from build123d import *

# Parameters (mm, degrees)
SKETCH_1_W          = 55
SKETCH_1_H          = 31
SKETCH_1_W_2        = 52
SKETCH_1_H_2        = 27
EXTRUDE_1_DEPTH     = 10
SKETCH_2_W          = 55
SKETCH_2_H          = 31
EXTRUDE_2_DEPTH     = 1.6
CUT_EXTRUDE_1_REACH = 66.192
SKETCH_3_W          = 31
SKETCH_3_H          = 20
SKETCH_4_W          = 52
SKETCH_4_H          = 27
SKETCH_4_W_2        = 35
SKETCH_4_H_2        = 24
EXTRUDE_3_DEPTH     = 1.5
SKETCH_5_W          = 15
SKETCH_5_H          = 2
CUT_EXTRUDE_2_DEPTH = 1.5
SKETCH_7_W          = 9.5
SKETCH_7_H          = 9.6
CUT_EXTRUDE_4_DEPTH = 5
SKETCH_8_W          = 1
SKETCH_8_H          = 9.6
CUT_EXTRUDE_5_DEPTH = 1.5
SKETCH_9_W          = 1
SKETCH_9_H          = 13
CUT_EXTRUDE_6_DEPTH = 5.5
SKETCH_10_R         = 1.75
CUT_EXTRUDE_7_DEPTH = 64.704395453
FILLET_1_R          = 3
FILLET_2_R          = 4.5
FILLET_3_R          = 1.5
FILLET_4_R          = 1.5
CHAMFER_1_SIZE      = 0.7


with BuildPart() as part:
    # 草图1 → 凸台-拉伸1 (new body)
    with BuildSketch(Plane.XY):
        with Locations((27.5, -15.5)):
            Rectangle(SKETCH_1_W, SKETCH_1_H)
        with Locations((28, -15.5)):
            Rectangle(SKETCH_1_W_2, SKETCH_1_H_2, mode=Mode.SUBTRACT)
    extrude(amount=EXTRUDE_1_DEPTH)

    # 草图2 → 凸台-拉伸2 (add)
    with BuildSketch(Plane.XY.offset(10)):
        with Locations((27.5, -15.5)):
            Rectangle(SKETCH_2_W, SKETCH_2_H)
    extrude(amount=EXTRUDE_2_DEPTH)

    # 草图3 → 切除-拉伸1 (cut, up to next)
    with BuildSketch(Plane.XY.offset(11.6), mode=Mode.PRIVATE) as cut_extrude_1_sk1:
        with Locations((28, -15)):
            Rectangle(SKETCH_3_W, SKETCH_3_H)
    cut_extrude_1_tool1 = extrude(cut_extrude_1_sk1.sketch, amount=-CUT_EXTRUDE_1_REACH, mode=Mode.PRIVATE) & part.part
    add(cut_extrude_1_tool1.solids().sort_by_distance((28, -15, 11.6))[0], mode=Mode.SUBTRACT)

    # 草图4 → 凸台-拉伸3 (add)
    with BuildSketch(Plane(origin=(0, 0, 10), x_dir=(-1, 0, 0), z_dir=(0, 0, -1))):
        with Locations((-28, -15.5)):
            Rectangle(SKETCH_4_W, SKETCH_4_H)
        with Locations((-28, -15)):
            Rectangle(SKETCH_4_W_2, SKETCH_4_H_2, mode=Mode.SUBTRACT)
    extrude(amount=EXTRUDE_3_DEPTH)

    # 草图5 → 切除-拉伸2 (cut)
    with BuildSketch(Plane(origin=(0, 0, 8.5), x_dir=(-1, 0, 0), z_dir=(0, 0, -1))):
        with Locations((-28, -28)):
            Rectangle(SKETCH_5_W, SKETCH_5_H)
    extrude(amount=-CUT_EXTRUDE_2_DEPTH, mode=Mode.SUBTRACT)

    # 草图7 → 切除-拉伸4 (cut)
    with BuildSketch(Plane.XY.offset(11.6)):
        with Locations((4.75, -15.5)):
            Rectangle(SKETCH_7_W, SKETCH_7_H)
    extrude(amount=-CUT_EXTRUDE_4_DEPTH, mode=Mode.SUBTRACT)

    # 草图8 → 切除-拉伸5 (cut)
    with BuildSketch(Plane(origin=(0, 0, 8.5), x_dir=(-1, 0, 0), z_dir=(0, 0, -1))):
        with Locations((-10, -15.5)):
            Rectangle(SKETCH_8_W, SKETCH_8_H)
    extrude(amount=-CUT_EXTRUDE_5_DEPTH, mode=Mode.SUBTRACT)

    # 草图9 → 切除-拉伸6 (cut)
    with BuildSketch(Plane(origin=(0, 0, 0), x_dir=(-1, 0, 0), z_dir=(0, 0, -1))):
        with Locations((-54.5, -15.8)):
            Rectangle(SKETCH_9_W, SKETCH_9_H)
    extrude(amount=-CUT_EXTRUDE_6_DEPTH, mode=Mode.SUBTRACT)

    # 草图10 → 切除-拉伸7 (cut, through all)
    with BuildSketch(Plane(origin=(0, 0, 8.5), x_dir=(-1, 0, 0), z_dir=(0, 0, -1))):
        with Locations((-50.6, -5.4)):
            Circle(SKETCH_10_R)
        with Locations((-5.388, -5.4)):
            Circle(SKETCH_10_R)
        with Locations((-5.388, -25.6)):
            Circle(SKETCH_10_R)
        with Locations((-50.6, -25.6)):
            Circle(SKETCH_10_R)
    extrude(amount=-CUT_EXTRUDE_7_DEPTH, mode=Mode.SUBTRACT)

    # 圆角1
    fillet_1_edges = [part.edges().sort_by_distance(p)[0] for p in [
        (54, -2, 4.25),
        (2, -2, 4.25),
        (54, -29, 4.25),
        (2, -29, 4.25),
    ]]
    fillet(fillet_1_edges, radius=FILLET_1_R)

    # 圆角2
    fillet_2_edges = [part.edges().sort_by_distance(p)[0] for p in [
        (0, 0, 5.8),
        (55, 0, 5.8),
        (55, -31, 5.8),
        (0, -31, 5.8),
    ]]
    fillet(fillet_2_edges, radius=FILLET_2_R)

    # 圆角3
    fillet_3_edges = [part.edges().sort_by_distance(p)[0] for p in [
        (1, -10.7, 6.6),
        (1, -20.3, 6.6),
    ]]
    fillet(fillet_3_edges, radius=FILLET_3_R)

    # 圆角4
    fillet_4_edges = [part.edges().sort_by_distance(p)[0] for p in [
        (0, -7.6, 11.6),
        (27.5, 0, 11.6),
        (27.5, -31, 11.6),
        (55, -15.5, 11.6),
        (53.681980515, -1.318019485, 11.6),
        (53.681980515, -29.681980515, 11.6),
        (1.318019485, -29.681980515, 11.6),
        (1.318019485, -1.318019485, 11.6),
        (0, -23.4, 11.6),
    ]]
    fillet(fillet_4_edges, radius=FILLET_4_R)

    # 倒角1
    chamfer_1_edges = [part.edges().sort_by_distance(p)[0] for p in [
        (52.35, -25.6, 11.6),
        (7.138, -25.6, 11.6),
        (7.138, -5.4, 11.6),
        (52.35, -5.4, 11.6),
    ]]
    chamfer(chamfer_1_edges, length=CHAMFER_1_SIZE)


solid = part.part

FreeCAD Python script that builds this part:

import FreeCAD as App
import Part
import Sketcher


def edges_at(feature, points):
    """Names of the edges that pass closest to the given points."""
    edges = feature.Shape.Edges
    near = lambda p: min(range(len(edges)), key=lambda i: edges[i].distToShape(Part.Vertex(*p))[0])
    return sorted({f"Edge{near(p) + 1}" for p in points})

doc = App.newDocument("Part")
body = doc.addObject("PartDesign::Body", "Body")

# Sketch on XY plane
sketch1 = doc.addObject("Sketcher::SketchObject", "Sketch")
body.addObject(sketch1)
sketch1.AttachmentSupport = (doc.XY_Plane, [""])
sketch1.MapMode = "FlatFace"
sketch1.addGeometry([
    Part.LineSegment(App.Vector(0, 0, 0), App.Vector(0, -31, 0)),  # 0
    Part.LineSegment(App.Vector(0, -31, 0), App.Vector(55, -31, 0)),  # 1
    Part.LineSegment(App.Vector(55, -31, 0), App.Vector(55, 0, 0)),  # 2
    Part.LineSegment(App.Vector(55, 0, 0), App.Vector(0, 0, 0)),  # 3
    Part.LineSegment(App.Vector(54, -29, 0), App.Vector(2, -29, 0)),  # 4
    Part.LineSegment(App.Vector(2, -29, 0), App.Vector(2, -2, 0)),  # 5
    Part.LineSegment(App.Vector(2, -2, 0), App.Vector(54, -2, 0)),  # 6
    Part.LineSegment(App.Vector(54, -2, 0), App.Vector(54, -29, 0)),  # 7
], False)
sketch1.addConstraint([
    Sketcher.Constraint("Coincident", 0, 2, 1, 1),
    Sketcher.Constraint("Coincident", 1, 2, 2, 1),
    Sketcher.Constraint("Coincident", 2, 2, 3, 1),
    Sketcher.Constraint("Coincident", 3, 2, 0, 1),
    Sketcher.Constraint("Coincident", 4, 2, 5, 1),
    Sketcher.Constraint("Coincident", 5, 2, 6, 1),
    Sketcher.Constraint("Coincident", 6, 2, 7, 1),
    Sketcher.Constraint("Coincident", 7, 2, 4, 1),
    Sketcher.Constraint("Vertical", 0),
    Sketcher.Constraint("Horizontal", 1),
    Sketcher.Constraint("Vertical", 2),
    Sketcher.Constraint("Horizontal", 3),
    Sketcher.Constraint("Horizontal", 4),
    Sketcher.Constraint("Vertical", 5),
    Sketcher.Constraint("Horizontal", 6),
    Sketcher.Constraint("Vertical", 7),
    Sketcher.Constraint("Coincident", 3, 2, -1, 1),
    Sketcher.Constraint("DistanceX", 1, 1, 1, 2, 55.0),
    Sketcher.Constraint("DistanceX", 4, 2, 4, 1, 52.0),
    Sketcher.Constraint("DistanceY", 0, 2, 0, 1, 31.0),
    Sketcher.Constraint("DistanceY", 5, 1, 5, 2, 27.0),
    Sketcher.Constraint("DistanceX", -1, 1, 4, 2, 2.0),
    Sketcher.Constraint("DistanceY", 4, 2, -1, 1, 29.0),
])
pad1 = doc.addObject("PartDesign::Pad", "Pad")
body.addObject(pad1)
pad1.Profile = sketch1
pad1.Length = 10

# Sketch on XY plane
sketch2 = doc.addObject("Sketcher::SketchObject", "Sketch001")
body.addObject(sketch2)
sketch2.AttachmentSupport = (doc.XY_Plane, [""])
sketch2.MapMode = "FlatFace"
sketch2.AttachmentOffset = App.Placement(App.Vector(0, 0, 10), App.Rotation())
sketch2.addGeometry([
    Part.LineSegment(App.Vector(0, 0, 0), App.Vector(0, -31, 0)),
    Part.LineSegment(App.Vector(0, -31, 0), App.Vector(55, -31, 0)),
    Part.LineSegment(App.Vector(55, -31, 0), App.Vector(55, 0, 0)),
    Part.LineSegment(App.Vector(55, 0, 0), App.Vector(0, 0, 0)),
], False)
sketch2.addConstraint([
    Sketcher.Constraint("Coincident", 0, 2, 1, 1),
    Sketcher.Constraint("Coincident", 1, 2, 2, 1),
    Sketcher.Constraint("Coincident", 2, 2, 3, 1),
    Sketcher.Constraint("Coincident", 3, 2, 0, 1),
    Sketcher.Constraint("Vertical", 0),
    Sketcher.Constraint("Horizontal", 1),
    Sketcher.Constraint("Vertical", 2),
    Sketcher.Constraint("Horizontal", 3),
    Sketcher.Constraint("Coincident", 3, 2, -1, 1),
    Sketcher.Constraint("DistanceX", 1, 1, 1, 2, 55.0),
    Sketcher.Constraint("DistanceY", 0, 2, 0, 1, 31.0),
])
pad2 = doc.addObject("PartDesign::Pad", "Pad001")
body.addObject(pad2)
pad2.Profile = sketch2
pad2.Length = 1.6

# Sketch on XY plane
sketch3 = doc.addObject("Sketcher::SketchObject", "Sketch002")
body.addObject(sketch3)
sketch3.AttachmentSupport = (doc.XY_Plane, [""])
sketch3.MapMode = "FlatFace"
sketch3.AttachmentOffset = App.Placement(App.Vector(0, 0, 11.6), App.Rotation())
sketch3.addGeometry([
    Part.LineSegment(App.Vector(12.5, -5, 0), App.Vector(12.5, -25, 0)),
    Part.LineSegment(App.Vector(12.5, -25, 0), App.Vector(43.5, -25, 0)),
    Part.LineSegment(App.Vector(43.5, -25, 0), App.Vector(43.5, -5, 0)),
    Part.LineSegment(App.Vector(43.5, -5, 0), App.Vector(12.5, -5, 0)),
], False)
sketch3.addConstraint([
    Sketcher.Constraint("Coincident", 0, 2, 1, 1),
    Sketcher.Constraint("Coincident", 1, 2, 2, 1),
    Sketcher.Constraint("Coincident", 2, 2, 3, 1),
    Sketcher.Constraint("Coincident", 3, 2, 0, 1),
    Sketcher.Constraint("Vertical", 0),
    Sketcher.Constraint("Horizontal", 1),
    Sketcher.Constraint("Vertical", 2),
    Sketcher.Constraint("Horizontal", 3),
    Sketcher.Constraint("DistanceX", 1, 1, 1, 2, 31.0),
    Sketcher.Constraint("DistanceY", 0, 2, 0, 1, 20.0),
    Sketcher.Constraint("DistanceY", 0, 2, -1, 1, 25.0),
    Sketcher.Constraint("DistanceX", -1, 1, 0, 2, 12.5),
])
pocket1 = doc.addObject("PartDesign::Pocket", "Pocket")
body.addObject(pocket1)
pocket1.Profile = sketch3
pocket1.Type = "UpToFirst"

# Sketch on XY plane
sketch4 = doc.addObject("Sketcher::SketchObject", "Sketch003")
body.addObject(sketch4)
sketch4.AttachmentSupport = (doc.XY_Plane, [""])
sketch4.MapMode = "FlatFace"
sketch4.AttachmentOffset = App.Placement(App.Vector(0, 0, 10), App.Rotation())
sketch4.addGeometry([
    Part.LineSegment(App.Vector(54, -2, 0), App.Vector(54, -29, 0)),  # 0
    Part.LineSegment(App.Vector(54, -29, 0), App.Vector(2, -29, 0)),  # 1
    Part.LineSegment(App.Vector(2, -29, 0), App.Vector(2, -2, 0)),  # 2
    Part.LineSegment(App.Vector(2, -2, 0), App.Vector(54, -2, 0)),  # 3
    Part.LineSegment(App.Vector(10.5, -27, 0), App.Vector(45.5, -27, 0)),  # 4
    Part.LineSegment(App.Vector(45.5, -27, 0), App.Vector(45.5, -3, 0)),  # 5
    Part.LineSegment(App.Vector(45.5, -3, 0), App.Vector(10.5, -3, 0)),  # 6
    Part.LineSegment(App.Vector(10.5, -3, 0), App.Vector(10.5, -27, 0)),  # 7
], False)
sketch4.addConstraint([
    Sketcher.Constraint("Coincident", 0, 2, 1, 1),
    Sketcher.Constraint("Coincident", 1, 2, 2, 1),
    Sketcher.Constraint("Coincident", 2, 2, 3, 1),
    Sketcher.Constraint("Coincident", 3, 2, 0, 1),
    Sketcher.Constraint("Coincident", 4, 2, 5, 1),
    Sketcher.Constraint("Coincident", 5, 2, 6, 1),
    Sketcher.Constraint("Coincident", 6, 2, 7, 1),
    Sketcher.Constraint("Coincident", 7, 2, 4, 1),
    Sketcher.Constraint("Vertical", 0),
    Sketcher.Constraint("Horizontal", 1),
    Sketcher.Constraint("Vertical", 2),
    Sketcher.Constraint("Horizontal", 3),
    Sketcher.Constraint("Horizontal", 4),
    Sketcher.Constraint("Vertical", 5),
    Sketcher.Constraint("Horizontal", 6),
    Sketcher.Constraint("Vertical", 7),
    Sketcher.Constraint("DistanceX", 1, 2, 1, 1, 52.0),
    Sketcher.Constraint("DistanceX", 4, 1, 4, 2, 35.0),
    Sketcher.Constraint("DistanceY", 0, 2, 0, 1, 27.0),
    Sketcher.Constraint("DistanceY", 5, 1, 5, 2, 24.0),
    Sketcher.Constraint("DistanceX", -1, 1, 0, 2, 54.0),
    Sketcher.Constraint("DistanceY", 0, 2, -1, 1, 29.0),
    Sketcher.Constraint("DistanceY", 4, 2, -1, 1, 27.0),
    Sketcher.Constraint("DistanceX", -1, 1, 4, 2, 45.5),
])
pad3 = doc.addObject("PartDesign::Pad", "Pad002")
body.addObject(pad3)
pad3.Profile = sketch4
pad3.Length = 1.5
pad3.Reversed = True

# Sketch on XY plane
sketch5 = doc.addObject("Sketcher::SketchObject", "Sketch004")
body.addObject(sketch5)
sketch5.AttachmentSupport = (doc.XY_Plane, [""])
sketch5.MapMode = "FlatFace"
sketch5.AttachmentOffset = App.Placement(App.Vector(0, 0, 8.5), App.Rotation())
sketch5.addGeometry([
    Part.LineSegment(App.Vector(35.5, -27, 0), App.Vector(35.5, -29, 0)),
    Part.LineSegment(App.Vector(35.5, -29, 0), App.Vector(20.5, -29, 0)),
    Part.LineSegment(App.Vector(20.5, -29, 0), App.Vector(20.5, -27, 0)),
    Part.LineSegment(App.Vector(20.5, -27, 0), App.Vector(35.5, -27, 0)),
], False)
sketch5.addConstraint([
    Sketcher.Constraint("Coincident", 0, 2, 1, 1),
    Sketcher.Constraint("Coincident", 1, 2, 2, 1),
    Sketcher.Constraint("Coincident", 2, 2, 3, 1),
    Sketcher.Constraint("Coincident", 3, 2, 0, 1),
    Sketcher.Constraint("Vertical", 0),
    Sketcher.Constraint("Horizontal", 1),
    Sketcher.Constraint("Vertical", 2),
    Sketcher.Constraint("Horizontal", 3),
    Sketcher.Constraint("DistanceX", 1, 2, 1, 1, 15.0),
    Sketcher.Constraint("DistanceY", 0, 2, 0, 1, 2.0),
    Sketcher.Constraint("DistanceY", 0, 2, -1, 1, 29.0),
    Sketcher.Constraint("DistanceX", -1, 1, 0, 2, 35.5),
])
pocket2 = doc.addObject("PartDesign::Pocket", "Pocket001")
body.addObject(pocket2)
pocket2.Profile = sketch5
pocket2.Length = 1.5
pocket2.Reversed = True

# Sketch on XY plane
sketch6 = doc.addObject("Sketcher::SketchObject", "Sketch005")
body.addObject(sketch6)
sketch6.AttachmentSupport = (doc.XY_Plane, [""])
sketch6.MapMode = "FlatFace"
sketch6.AttachmentOffset = App.Placement(App.Vector(0, 0, 11.6), App.Rotation())
sketch6.addGeometry([
    Part.LineSegment(App.Vector(0, -10.7, 0), App.Vector(0, -20.3, 0)),
    Part.LineSegment(App.Vector(0, -20.3, 0), App.Vector(9.5, -20.3, 0)),
    Part.LineSegment(App.Vector(9.5, -20.3, 0), App.Vector(9.5, -10.7, 0)),
    Part.LineSegment(App.Vector(9.5, -10.7, 0), App.Vector(0, -10.7, 0)),
], False)
sketch6.addConstraint([
    Sketcher.Constraint("Coincident", 0, 2, 1, 1),
    Sketcher.Constraint("Coincident", 1, 2, 2, 1),
    Sketcher.Constraint("Coincident", 2, 2, 3, 1),
    Sketcher.Constraint("Coincident", 3, 2, 0, 1),
    Sketcher.Constraint("Vertical", 0),
    Sketcher.Constraint("Horizontal", 1),
    Sketcher.Constraint("Vertical", 2),
    Sketcher.Constraint("Horizontal", 3),
    Sketcher.Constraint("PointOnObject", 0, 2, -2),
    Sketcher.Constraint("DistanceX", 1, 1, 1, 2, 9.5),
    Sketcher.Constraint("DistanceY", 0, 2, 0, 1, 9.6),
    Sketcher.Constraint("DistanceY", 0, 2, -1, 1, 20.3),
])
pocket3 = doc.addObject("PartDesign::Pocket", "Pocket002")
body.addObject(pocket3)
pocket3.Profile = sketch6
pocket3.Length = 5

# Sketch on XY plane
sketch7 = doc.addObject("Sketcher::SketchObject", "Sketch006")
body.addObject(sketch7)
sketch7.AttachmentSupport = (doc.XY_Plane, [""])
sketch7.MapMode = "FlatFace"
sketch7.AttachmentOffset = App.Placement(App.Vector(0, 0, 8.5), App.Rotation())
sketch7.addGeometry([
    Part.LineSegment(App.Vector(10.5, -10.7, 0), App.Vector(10.5, -20.3, 0)),
    Part.LineSegment(App.Vector(10.5, -20.3, 0), App.Vector(9.5, -20.3, 0)),
    Part.LineSegment(App.Vector(9.5, -20.3, 0), App.Vector(9.5, -10.7, 0)),
    Part.LineSegment(App.Vector(9.5, -10.7, 0), App.Vector(10.5, -10.7, 0)),
], False)
sketch7.addConstraint([
    Sketcher.Constraint("Coincident", 0, 2, 1, 1),
    Sketcher.Constraint("Coincident", 1, 2, 2, 1),
    Sketcher.Constraint("Coincident", 2, 2, 3, 1),
    Sketcher.Constraint("Coincident", 3, 2, 0, 1),
    Sketcher.Constraint("Vertical", 0),
    Sketcher.Constraint("Horizontal", 1),
    Sketcher.Constraint("Vertical", 2),
    Sketcher.Constraint("Horizontal", 3),
    Sketcher.Constraint("DistanceX", 1, 2, 1, 1, 1.0),
    Sketcher.Constraint("DistanceY", 0, 2, 0, 1, 9.6),
    Sketcher.Constraint("DistanceX", -1, 1, 0, 2, 10.5),
    Sketcher.Constraint("DistanceY", 0, 2, -1, 1, 20.3),
])
pocket4 = doc.addObject("PartDesign::Pocket", "Pocket003")
body.addObject(pocket4)
pocket4.Profile = sketch7
pocket4.Length = 1.5
pocket4.Reversed = True

# Sketch on XY plane
sketch8 = doc.addObject("Sketcher::SketchObject", "Sketch007")
body.addObject(sketch8)
sketch8.AttachmentSupport = (doc.XY_Plane, [""])
sketch8.MapMode = "FlatFace"
sketch8.addGeometry([
    Part.LineSegment(App.Vector(55, -9.3, 0), App.Vector(55, -22.3, 0)),
    Part.LineSegment(App.Vector(55, -22.3, 0), App.Vector(54, -22.3, 0)),
    Part.LineSegment(App.Vector(54, -22.3, 0), App.Vector(54, -9.3, 0)),
    Part.LineSegment(App.Vector(54, -9.3, 0), App.Vector(55, -9.3, 0)),
], False)
sketch8.addConstraint([
    Sketcher.Constraint("Coincident", 0, 2, 1, 1),
    Sketcher.Constraint("Coincident", 1, 2, 2, 1),
    Sketcher.Constraint("Coincident", 2, 2, 3, 1),
    Sketcher.Constraint("Coincident", 3, 2, 0, 1),
    Sketcher.Constraint("Vertical", 0),
    Sketcher.Constraint("Horizontal", 1),
    Sketcher.Constraint("Vertical", 2),
    Sketcher.Constraint("Horizontal", 3),
    Sketcher.Constraint("DistanceX", 1, 2, 1, 1, 1.0),
    Sketcher.Constraint("DistanceY", 0, 2, 0, 1, 13.0),
    Sketcher.Constraint("DistanceX", -1, 1, 0, 2, 55.0),
    Sketcher.Constraint("DistanceY", 0, 2, -1, 1, 22.3),
])
pocket5 = doc.addObject("PartDesign::Pocket", "Pocket004")
body.addObject(pocket5)
pocket5.Profile = sketch8
pocket5.Length = 5.5
pocket5.Reversed = True

# Sketch on XY plane
sketch9 = doc.addObject("Sketcher::SketchObject", "Sketch008")
body.addObject(sketch9)
sketch9.AttachmentSupport = (doc.XY_Plane, [""])
sketch9.MapMode = "FlatFace"
sketch9.AttachmentOffset = App.Placement(App.Vector(0, 0, 8.5), App.Rotation())
sketch9.addGeometry([
    Part.Circle(App.Vector(50.6, -5.4, 0), App.Vector(0, 0, 1), 1.75),
    Part.Circle(App.Vector(5.388, -5.4, 0), App.Vector(0, 0, 1), 1.75),
    Part.Circle(App.Vector(5.388, -25.6, 0), App.Vector(0, 0, 1), 1.75),
    Part.Circle(App.Vector(50.6, -25.6, 0), App.Vector(0, 0, 1), 1.75),
], False)
sketch9.addConstraint([
    Sketcher.Constraint("Equal", 0, 1),
    Sketcher.Constraint("Equal", 1, 2),
    Sketcher.Constraint("Equal", 2, 3),
    Sketcher.Constraint("Horizontal", 0, 3, 1, 3),
    Sketcher.Constraint("Horizontal", 2, 3, 3, 3),
    Sketcher.Constraint("Vertical", 1, 3, 2, 3),
    Sketcher.Constraint("Vertical", 0, 3, 3, 3),
    Sketcher.Constraint("Diameter", 0, 3.5),
    Sketcher.Constraint("DistanceX", -1, 1, 0, 3, 50.6),
    Sketcher.Constraint("DistanceY", 0, 3, -1, 1, 5.4),
    Sketcher.Constraint("DistanceY", 2, 3, -1, 1, 25.6),
    Sketcher.Constraint("DistanceX", -1, 1, 1, 3, 5.388),
])
pocket6 = doc.addObject("PartDesign::Pocket", "Pocket005")
body.addObject(pocket6)
pocket6.Profile = sketch9
pocket6.Type = "ThroughAll"
pocket6.Reversed = True
doc.recompute()

fillet = doc.addObject("PartDesign::Fillet", "Fillet")
body.addObject(fillet)
fillet.Base = (pocket6, edges_at(pocket6, [
    (54, -2, 4.25),
    (2, -2, 4.25),
    (54, -29, 4.25),
    (2, -29, 4.25),
]))
fillet.Radius = 3
doc.recompute()

fillet2 = doc.addObject("PartDesign::Fillet", "Fillet001")
body.addObject(fillet2)
fillet2.Base = (fillet, edges_at(fillet, [
    (0, 0, 5.8),
    (55, 0, 5.8),
    (55, -31, 5.8),
    (0, -31, 5.8),
]))
fillet2.Radius = 4.5
doc.recompute()

fillet3 = doc.addObject("PartDesign::Fillet", "Fillet002")
body.addObject(fillet3)
fillet3.Base = (fillet2, edges_at(fillet2, [(1, -10.7, 6.6), (1, -20.3, 6.6)]))
fillet3.Radius = 1.5
doc.recompute()

fillet4 = doc.addObject("PartDesign::Fillet", "Fillet003")
body.addObject(fillet4)
fillet4.Base = (fillet3, edges_at(fillet3, [
    (0, -7.6, 11.6),
    (27.5, 0, 11.6),
    (27.5, -31, 11.6),
    (55, -15.5, 11.6),
    (53.682, -1.318, 11.6),
    (53.682, -29.682, 11.6),
    (1.318, -29.682, 11.6),
    (1.318, -1.318, 11.6),
    (0, -23.4, 11.6),
]))
fillet4.Radius = 1.5
doc.recompute()

chamfer = doc.addObject("PartDesign::Chamfer", "Chamfer")
body.addObject(chamfer)
chamfer.Base = (fillet4, edges_at(fillet4, [
    (52.35, -25.6, 11.6),
    (7.138, -25.6, 11.6),
    (7.138, -5.4, 11.6),
    (52.35, -5.4, 11.6),
]))
chamfer.Size = 0.7

doc.recompute()
